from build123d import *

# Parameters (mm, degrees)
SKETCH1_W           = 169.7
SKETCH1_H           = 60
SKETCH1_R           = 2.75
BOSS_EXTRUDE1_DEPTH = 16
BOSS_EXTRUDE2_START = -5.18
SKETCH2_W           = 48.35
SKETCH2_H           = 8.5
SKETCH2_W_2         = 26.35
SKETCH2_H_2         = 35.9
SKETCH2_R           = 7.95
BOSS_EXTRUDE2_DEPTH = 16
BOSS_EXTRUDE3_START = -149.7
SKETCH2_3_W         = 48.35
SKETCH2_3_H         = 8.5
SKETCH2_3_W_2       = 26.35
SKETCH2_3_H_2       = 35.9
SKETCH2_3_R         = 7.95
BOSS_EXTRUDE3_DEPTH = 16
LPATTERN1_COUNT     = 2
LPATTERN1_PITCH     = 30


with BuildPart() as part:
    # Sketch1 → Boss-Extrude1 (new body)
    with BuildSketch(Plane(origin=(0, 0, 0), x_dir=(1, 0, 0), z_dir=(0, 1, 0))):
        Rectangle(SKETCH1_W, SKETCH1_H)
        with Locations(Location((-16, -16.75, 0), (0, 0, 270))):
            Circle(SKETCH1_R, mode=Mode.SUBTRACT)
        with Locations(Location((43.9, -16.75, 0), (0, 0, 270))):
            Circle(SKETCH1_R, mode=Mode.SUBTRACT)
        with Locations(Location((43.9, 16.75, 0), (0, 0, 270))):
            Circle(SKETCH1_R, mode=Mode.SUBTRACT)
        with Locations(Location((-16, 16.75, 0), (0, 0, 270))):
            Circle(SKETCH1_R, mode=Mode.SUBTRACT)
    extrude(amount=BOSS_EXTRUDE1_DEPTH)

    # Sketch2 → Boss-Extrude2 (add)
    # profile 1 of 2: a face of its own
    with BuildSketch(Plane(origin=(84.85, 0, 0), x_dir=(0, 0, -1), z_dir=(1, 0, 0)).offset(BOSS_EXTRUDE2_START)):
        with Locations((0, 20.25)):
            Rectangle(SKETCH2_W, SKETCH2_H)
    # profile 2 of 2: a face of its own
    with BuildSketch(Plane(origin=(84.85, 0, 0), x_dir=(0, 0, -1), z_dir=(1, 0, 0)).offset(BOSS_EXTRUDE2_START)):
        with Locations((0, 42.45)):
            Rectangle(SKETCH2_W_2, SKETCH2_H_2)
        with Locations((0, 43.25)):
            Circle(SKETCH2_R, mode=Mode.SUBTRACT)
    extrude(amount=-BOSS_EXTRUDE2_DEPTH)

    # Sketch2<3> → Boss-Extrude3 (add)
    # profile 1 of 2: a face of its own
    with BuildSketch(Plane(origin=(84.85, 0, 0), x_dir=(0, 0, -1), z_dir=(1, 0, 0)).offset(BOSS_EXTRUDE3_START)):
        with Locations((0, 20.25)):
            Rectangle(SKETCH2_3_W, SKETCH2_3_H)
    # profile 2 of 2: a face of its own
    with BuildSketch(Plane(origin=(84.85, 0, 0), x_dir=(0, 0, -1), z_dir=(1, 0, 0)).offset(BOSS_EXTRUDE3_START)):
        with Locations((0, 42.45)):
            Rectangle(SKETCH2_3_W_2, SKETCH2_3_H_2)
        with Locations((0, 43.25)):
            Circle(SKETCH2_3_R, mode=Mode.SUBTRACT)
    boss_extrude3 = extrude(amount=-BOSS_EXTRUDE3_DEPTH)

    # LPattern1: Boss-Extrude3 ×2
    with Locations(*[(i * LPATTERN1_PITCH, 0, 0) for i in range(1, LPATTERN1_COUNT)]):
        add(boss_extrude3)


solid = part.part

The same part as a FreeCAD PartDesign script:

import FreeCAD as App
import Part
import Sketcher
from FreeCAD import Vector

doc = App.newDocument("Part")
body = doc.addObject("PartDesign::Body", "Body")

# Sketch on XZ plane
sketch1 = body.newObject("Sketcher::SketchObject", "Sketch")
sketch1.AttachmentSupport = (doc.getObject("XZ_Plane"), [""])
sketch1.MapMode = "FlatFace"
sketch1.addGeometry(Part.LineSegment(Vector(-84.8, -30, 0), Vector(-84.8, 30, 0)), False)
sketch1.addGeometry(Part.LineSegment(Vector(-84.8, 30, 0), Vector(84.8, 30, 0)), False)
sketch1.addGeometry(Part.LineSegment(Vector(84.8, 30, 0), Vector(84.8, -30, 0)), False)
sketch1.addGeometry(Part.LineSegment(Vector(84.8, -30, 0), Vector(-84.8, -30, 0)), False)
sketch1.addGeometry(Part.Circle(Vector(-16, 16.8, 0), Vector(0, 0, 1), 2.8), False)
sketch1.addGeometry(Part.Circle(Vector(43.9, 16.8, 0), Vector(0, 0, 1), 2.8), False)
sketch1.addGeometry(Part.Circle(Vector(-16, -16.8, 0), Vector(0, 0, 1), 2.8), False)
sketch1.addGeometry(Part.Circle(Vector(43.9, -16.8, 0), Vector(0, 0, 1), 2.8), False)
sketch1.addConstraint(Sketcher.Constraint("Coincident", 0, 2, 1, 1))
sketch1.addConstraint(Sketcher.Constraint("Coincident", 1, 2, 2, 1))
sketch1.addConstraint(Sketcher.Constraint("Coincident", 2, 2, 3, 1))
sketch1.addConstraint(Sketcher.Constraint("Coincident", 3, 2, 0, 1))
sketch1.addConstraint(Sketcher.Constraint("Vertical", 0))
sketch1.addConstraint(Sketcher.Constraint("Horizontal", 1))
sketch1.addConstraint(Sketcher.Constraint("Vertical", 2))
sketch1.addConstraint(Sketcher.Constraint("Horizontal", 3))
sketch1.addConstraint(Sketcher.Constraint("Equal", 4, 5))
sketch1.addConstraint(Sketcher.Constraint("Equal", 5, 6))
sketch1.addConstraint(Sketcher.Constraint("Equal", 6, 7))
sketch1.addConstraint(Sketcher.Constraint("Symmetric", 0, 2, 2, 2, -1, 1))
sketch1.addConstraint(Sketcher.Constraint("Symmetric", 4, 3, 6, 3, -1))
sketch1.addConstraint(Sketcher.Constraint("Symmetric", 5, 3, 7, 3, -1))
sketch1.addConstraint(Sketcher.Constraint("Horizontal", 4, 3, 5, 3))
sketch1.addConstraint(Sketcher.Constraint("Diameter", 4, 5.5))
sketch1.addConstraint(Sketcher.Constraint("DistanceY", 0, 1, 0, 2, 60.0))
sketch1.addConstraint(Sketcher.Constraint("DistanceX", 1, 1, 1, 2, 169.7))
sketch1.addConstraint(Sketcher.Constraint("DistanceX", 4, 3, -1, 1, 16.0))
sketch1.addConstraint(Sketcher.Constraint("DistanceX", -1, 1, 5, 3, 43.9))
sketch1.addConstraint(Sketcher.Constraint("DistanceY", 6, 3, 4, 3, 33.5))
pad1 = body.newObject("PartDesign::Pad", "Pad")
pad1.Profile = sketch1
pad1.Length = 16
pad1.Reversed = True

# Sketch on YZ plane
sketch2 = body.newObject("Sketcher::SketchObject", "Sketch001")
sketch2.AttachmentSupport = (doc.getObject("YZ_Plane"), [""])
sketch2.MapMode = "FlatFace"
sketch2.AttachmentOffset = App.Placement(Vector(0, 0, 79.67), App.Rotation())
sketch2.addGeometry(Part.LineSegment(Vector(24, 24, 0), Vector(16, 24, 0)), False)
sketch2.addGeometry(Part.LineSegment(Vector(16, 24, 0), Vector(16, -24, 0)), False)
sketch2.addGeometry(Part.LineSegment(Vector(16, -24, 0), Vector(24, -24, 0)), False)
sketch2.addGeometry(Part.LineSegment(Vector(24, -24, 0), Vector(24, -13, 0)), False)
sketch2.addGeometry(Part.LineSegment(Vector(24, -13, 0), Vector(60, -13, 0)), False)
sketch2.addGeometry(Part.LineSegment(Vector(60, -13, 0), Vector(60, 13, 0)), False)
sketch2.addGeometry(Part.LineSegment(Vector(60, 13, 0), Vector(24, 13, 0)), False)
sketch2.addGeometry(Part.LineSegment(Vector(24, 13, 0), Vector(24, 24, 0)), False)
sketch2.addGeometry(Part.Circle(Vector(43, 0, 0), Vector(0, 0, 1), 8), False)
sketch2.addConstraint(Sketcher.Constraint("Coincident", 0, 2, 1, 1))
sketch2.addConstraint(Sketcher.Constraint("Coincident", 1, 2, 2, 1))
sketch2.addConstraint(Sketcher.Constraint("Coincident", 2, 2, 3, 1))
sketch2.addConstraint(Sketcher.Constraint("Coincident", 3, 2, 4, 1))
sketch2.addConstraint(Sketcher.Constraint("Coincident", 4, 2, 5, 1))
sketch2.addConstraint(Sketcher.Constraint("Coincident", 5, 2, 6, 1))
sketch2.addConstraint(Sketcher.Constraint("Coincident", 6, 2, 7, 1))
sketch2.addConstraint(Sketcher.Constraint("Coincident", 7, 2, 0, 1))
sketch2.addConstraint(Sketcher.Constraint("Horizontal", 0))
sketch2.addConstraint(Sketcher.Constraint("Vertical", 1))
sketch2.addConstraint(Sketcher.Constraint("Horizontal", 2))
sketch2.addConstraint(Sketcher.Constraint("Vertical", 3))
sketch2.addConstraint(Sketcher.Constraint("Horizontal", 4))
sketch2.addConstraint(Sketcher.Constraint("Vertical", 5))
sketch2.addConstraint(Sketcher.Constraint("Horizontal", 6))
sketch2.addConstraint(Sketcher.Constraint("Vertical", 7))
sketch2.addConstraint(Sketcher.Constraint("Symmetric", 3, 2, 6, 2, -1))
sketch2.addConstraint(Sketcher.Constraint("PointOnObject", 8, 3, -1))
sketch2.addConstraint(Sketcher.Constraint("Equal", 3, 7))
sketch2.addConstraint(Sketcher.Constraint("Diameter", 8, 15.9))
sketch2.addConstraint(Sketcher.Constraint("DistanceY", 3, 1, 3, 2, 11.0))
sketch2.addConstraint(Sketcher.Constraint("DistanceX", 0, 2, 0, 1, 8.5))
sketch2.addConstraint(Sketcher.Constraint("DistanceX", 4, 1, 4, 2, 35.9))
sketch2.addConstraint(Sketcher.Constraint("DistanceX", -1, 1, 0, 2, 16.0))
sketch2.addConstraint(Sketcher.Constraint("DistanceY", 1, 2, 1, 1, 48.35))
sketch2.addConstraint(Sketcher.Constraint("DistanceX", -1, 1, 8, 3, 43.25))
pad2 = body.newObject("PartDesign::Pad", "Pad001")
pad2.Profile = sketch2
pad2.Length = 16
pad2.Reversed = True

# Sketch on YZ plane
sketch3 = body.newObject("Sketcher::SketchObject", "Sketch002")
sketch3.AttachmentSupport = (doc.getObject("YZ_Plane"), [""])
sketch3.MapMode = "FlatFace"
sketch3.AttachmentOffset = App.Placement(Vector(0, 0, -64.85), App.Rotation())
sketch3.addGeometry(Part.LineSegment(Vector(24, 24, 0), Vector(16, 24, 0)), False)
sketch3.addGeometry(Part.LineSegment(Vector(16, 24, 0), Vector(16, -24, 0)), False)
sketch3.addGeometry(Part.LineSegment(Vector(16, -24, 0), Vector(24, -24, 0)), False)
sketch3.addGeometry(Part.LineSegment(Vector(24, -24, 0), Vector(24, -13, 0)), False)
sketch3.addGeometry(Part.LineSegment(Vector(24, -13, 0), Vector(60, -13, 0)), False)
sketch3.addGeometry(Part.LineSegment(Vector(60, -13, 0), Vector(60, 13, 0)), False)
sketch3.addGeometry(Part.LineSegment(Vector(60, 13, 0), Vector(24, 13, 0)), False)
sketch3.addGeometry(Part.LineSegment(Vector(24, 13, 0), Vector(24, 24, 0)), False)
sketch3.addGeometry(Part.Circle(Vector(43, 0, 0), Vector(0, 0, 1), 8), False)
sketch3.addConstraint(Sketcher.Constraint("Coincident", 0, 2, 1, 1))
sketch3.addConstraint(Sketcher.Constraint("Coincident", 1, 2, 2, 1))
sketch3.addConstraint(Sketcher.Constraint("Coincident", 2, 2, 3, 1))
sketch3.addConstraint(Sketcher.Constraint("Coincident", 3, 2, 4, 1))
sketch3.addConstraint(Sketcher.Constraint("Coincident", 4, 2, 5, 1))
sketch3.addConstraint(Sketcher.Constraint("Coincident", 5, 2, 6, 1))
sketch3.addConstraint(Sketcher.Constraint("Coincident", 6, 2, 7, 1))
sketch3.addConstraint(Sketcher.Constraint("Coincident", 7, 2, 0, 1))
sketch3.addConstraint(Sketcher.Constraint("Horizontal", 0))
sketch3.addConstraint(Sketcher.Constraint("Vertical", 1))
sketch3.addConstraint(Sketcher.Constraint("Horizontal", 2))
sketch3.addConstraint(Sketcher.Constraint("Vertical", 3))
sketch3.addConstraint(Sketcher.Constraint("Horizontal", 4))
sketch3.addConstraint(Sketcher.Constraint("Vertical", 5))
sketch3.addConstraint(Sketcher.Constraint("Horizontal", 6))
sketch3.addConstraint(Sketcher.Constraint("Vertical", 7))
sketch3.addConstraint(Sketcher.Constraint("Symmetric", 3, 2, 6, 2, -1))
sketch3.addConstraint(Sketcher.Constraint("PointOnObject", 8, 3, -1))
sketch3.addConstraint(Sketcher.Constraint("Equal", 3, 7))
sketch3.addConstraint(Sketcher.Constraint("Diameter", 8, 15.9))
sketch3.addConstraint(Sketcher.Constraint("DistanceY", 3, 1, 3, 2, 11.0))
sketch3.addConstraint(Sketcher.Constraint("DistanceX", 0, 2, 0, 1, 8.5))
sketch3.addConstraint(Sketcher.Constraint("DistanceX", 4, 1, 4, 2, 35.9))
sketch3.addConstraint(Sketcher.Constraint("DistanceX", -1, 1, 0, 2, 16.0))
sketch3.addConstraint(Sketcher.Constraint("DistanceY", 1, 2, 1, 1, 48.35))
sketch3.addConstraint(Sketcher.Constraint("DistanceX", -1, 1, 8, 3, 43.25))
pad3 = body.newObject("PartDesign::Pad", "Pad002")
pad3.Profile = sketch3
pad3.Length = 16
pad3.Reversed = True
doc.recompute()

linearpattern = body.newObject("PartDesign::LinearPattern", "LinearPattern")
linearpattern.Originals = [pad3]
linearpattern.Direction = (doc.getObject("X_Axis"), [""])
linearpattern.Mode = "offset"
linearpattern.Offset = 30
linearpattern.Occurrences = 2
body.Tip = linearpattern

doc.recompute()
